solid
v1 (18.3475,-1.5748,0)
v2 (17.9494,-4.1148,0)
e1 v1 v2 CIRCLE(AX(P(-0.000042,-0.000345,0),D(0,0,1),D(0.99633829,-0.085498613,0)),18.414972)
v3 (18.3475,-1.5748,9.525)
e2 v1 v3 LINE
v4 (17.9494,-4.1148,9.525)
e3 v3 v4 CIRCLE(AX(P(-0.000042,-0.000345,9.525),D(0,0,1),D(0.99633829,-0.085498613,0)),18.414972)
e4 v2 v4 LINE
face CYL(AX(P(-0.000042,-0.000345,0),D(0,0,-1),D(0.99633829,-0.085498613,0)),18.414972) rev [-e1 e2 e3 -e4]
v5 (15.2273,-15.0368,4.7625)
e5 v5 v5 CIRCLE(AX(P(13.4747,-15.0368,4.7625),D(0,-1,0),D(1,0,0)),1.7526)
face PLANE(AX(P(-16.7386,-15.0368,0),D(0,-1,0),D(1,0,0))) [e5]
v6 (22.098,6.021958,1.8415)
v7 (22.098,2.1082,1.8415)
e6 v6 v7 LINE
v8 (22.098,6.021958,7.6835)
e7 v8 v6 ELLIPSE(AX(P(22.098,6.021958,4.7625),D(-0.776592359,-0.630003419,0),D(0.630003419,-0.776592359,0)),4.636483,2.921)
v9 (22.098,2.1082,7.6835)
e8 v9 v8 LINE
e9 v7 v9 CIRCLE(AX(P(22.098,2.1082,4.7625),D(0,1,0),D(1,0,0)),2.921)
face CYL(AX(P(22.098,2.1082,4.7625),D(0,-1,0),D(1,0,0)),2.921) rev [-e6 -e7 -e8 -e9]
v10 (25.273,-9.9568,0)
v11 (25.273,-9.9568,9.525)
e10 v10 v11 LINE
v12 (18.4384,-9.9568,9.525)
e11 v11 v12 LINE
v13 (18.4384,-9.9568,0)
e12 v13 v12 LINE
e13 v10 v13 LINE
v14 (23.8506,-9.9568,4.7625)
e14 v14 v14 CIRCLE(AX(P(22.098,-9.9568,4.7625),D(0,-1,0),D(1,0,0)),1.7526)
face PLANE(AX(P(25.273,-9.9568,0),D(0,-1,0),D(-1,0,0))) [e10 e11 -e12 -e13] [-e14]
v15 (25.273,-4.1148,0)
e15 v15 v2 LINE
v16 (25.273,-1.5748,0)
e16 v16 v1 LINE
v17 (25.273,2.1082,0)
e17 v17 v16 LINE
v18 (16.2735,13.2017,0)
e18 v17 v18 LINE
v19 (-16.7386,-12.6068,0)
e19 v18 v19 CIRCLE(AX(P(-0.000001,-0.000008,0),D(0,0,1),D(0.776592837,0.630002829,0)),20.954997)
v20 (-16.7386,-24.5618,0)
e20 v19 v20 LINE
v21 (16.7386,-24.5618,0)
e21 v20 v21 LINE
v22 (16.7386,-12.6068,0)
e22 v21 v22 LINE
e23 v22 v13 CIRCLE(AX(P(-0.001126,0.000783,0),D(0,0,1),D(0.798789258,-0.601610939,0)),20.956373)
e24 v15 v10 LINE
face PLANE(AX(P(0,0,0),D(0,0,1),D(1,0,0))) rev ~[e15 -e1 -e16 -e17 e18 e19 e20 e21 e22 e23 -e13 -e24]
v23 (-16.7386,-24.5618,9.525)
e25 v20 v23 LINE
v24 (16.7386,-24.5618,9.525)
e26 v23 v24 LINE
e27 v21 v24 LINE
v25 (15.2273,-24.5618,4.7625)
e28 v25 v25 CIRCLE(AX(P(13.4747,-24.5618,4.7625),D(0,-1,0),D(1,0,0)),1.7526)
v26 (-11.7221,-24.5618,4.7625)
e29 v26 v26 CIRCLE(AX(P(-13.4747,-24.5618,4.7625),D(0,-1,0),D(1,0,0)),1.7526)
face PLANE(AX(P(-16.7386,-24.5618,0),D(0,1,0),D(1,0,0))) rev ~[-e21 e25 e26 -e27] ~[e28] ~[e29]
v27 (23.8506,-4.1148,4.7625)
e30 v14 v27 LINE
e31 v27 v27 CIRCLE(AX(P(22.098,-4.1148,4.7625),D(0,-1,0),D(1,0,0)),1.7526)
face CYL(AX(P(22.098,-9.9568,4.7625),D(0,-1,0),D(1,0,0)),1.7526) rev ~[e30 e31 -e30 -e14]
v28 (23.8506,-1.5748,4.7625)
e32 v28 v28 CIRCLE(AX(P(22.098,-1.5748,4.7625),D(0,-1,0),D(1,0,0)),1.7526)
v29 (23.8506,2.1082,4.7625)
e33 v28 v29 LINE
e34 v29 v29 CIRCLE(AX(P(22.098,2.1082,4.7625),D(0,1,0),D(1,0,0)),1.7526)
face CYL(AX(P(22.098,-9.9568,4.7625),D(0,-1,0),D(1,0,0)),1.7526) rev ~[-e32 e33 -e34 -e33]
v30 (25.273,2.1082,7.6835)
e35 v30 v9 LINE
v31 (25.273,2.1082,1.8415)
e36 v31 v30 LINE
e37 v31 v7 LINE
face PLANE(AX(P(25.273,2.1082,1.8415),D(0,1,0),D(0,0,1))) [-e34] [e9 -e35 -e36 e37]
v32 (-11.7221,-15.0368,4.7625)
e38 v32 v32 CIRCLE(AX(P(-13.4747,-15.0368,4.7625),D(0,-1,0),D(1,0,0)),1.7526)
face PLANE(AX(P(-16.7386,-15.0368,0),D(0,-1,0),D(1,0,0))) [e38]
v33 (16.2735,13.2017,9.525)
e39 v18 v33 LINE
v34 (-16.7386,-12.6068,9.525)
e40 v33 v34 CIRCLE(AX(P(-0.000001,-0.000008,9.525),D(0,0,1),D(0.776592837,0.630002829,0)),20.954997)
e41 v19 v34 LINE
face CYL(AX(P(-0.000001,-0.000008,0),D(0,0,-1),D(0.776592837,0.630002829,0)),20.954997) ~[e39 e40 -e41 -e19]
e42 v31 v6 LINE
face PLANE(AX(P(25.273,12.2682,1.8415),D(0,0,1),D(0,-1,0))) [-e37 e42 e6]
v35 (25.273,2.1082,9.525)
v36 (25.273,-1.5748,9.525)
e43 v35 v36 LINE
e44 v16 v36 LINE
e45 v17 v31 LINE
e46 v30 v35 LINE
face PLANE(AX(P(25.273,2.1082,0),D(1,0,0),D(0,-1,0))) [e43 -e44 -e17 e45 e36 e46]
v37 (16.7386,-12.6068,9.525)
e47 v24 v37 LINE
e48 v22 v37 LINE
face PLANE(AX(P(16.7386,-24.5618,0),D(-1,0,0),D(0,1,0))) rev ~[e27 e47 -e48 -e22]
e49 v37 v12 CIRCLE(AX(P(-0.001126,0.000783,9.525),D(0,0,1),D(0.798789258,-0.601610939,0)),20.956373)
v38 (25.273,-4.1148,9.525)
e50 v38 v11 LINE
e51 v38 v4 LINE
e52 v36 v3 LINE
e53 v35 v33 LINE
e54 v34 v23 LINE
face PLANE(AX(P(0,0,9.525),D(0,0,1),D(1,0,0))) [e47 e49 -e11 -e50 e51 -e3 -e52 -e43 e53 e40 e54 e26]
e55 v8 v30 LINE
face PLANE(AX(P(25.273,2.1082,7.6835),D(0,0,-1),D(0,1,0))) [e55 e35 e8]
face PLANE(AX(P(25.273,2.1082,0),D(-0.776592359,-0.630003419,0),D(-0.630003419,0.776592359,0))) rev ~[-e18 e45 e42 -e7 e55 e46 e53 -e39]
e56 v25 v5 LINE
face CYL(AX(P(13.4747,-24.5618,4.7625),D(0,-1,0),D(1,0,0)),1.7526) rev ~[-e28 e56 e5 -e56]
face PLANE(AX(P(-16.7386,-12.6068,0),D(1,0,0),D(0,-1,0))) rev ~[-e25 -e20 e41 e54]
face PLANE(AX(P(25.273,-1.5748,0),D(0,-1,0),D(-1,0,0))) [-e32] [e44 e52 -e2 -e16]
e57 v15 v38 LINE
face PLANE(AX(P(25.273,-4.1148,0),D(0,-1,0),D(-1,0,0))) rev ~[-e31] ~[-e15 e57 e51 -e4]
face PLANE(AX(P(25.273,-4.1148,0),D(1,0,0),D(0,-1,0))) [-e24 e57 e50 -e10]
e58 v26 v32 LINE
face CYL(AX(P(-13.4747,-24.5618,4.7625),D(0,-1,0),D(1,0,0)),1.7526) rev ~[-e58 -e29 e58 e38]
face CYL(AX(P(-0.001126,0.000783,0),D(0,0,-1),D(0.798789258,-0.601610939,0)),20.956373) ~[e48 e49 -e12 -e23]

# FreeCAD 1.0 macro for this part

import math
import FreeCAD as App
import Part
import Sketcher
Q = App.Units.Quantity


def add_polygon(sketch, points):
    """Adds a closed chain of lines whose ends are joined by coincident constraints."""
    first, n = sketch.GeometryCount, len(points)
    for a, b in zip(points, points[1:] + points[:1]):
        sketch.addGeometry(Part.LineSegment(App.Vector(*a, 0), App.Vector(*b, 0)), False)
    for i in range(n):
        sketch.addConstraint(Sketcher.Constraint("Coincident", first + i, 2, first + (i + 1) % n, 1))

doc = App.newDocument("Part")
params = doc.addObject("Spreadsheet::Sheet", "Params")
for row, (alias, value) in enumerate([
    ("sketch1_radius", "0.725 in"),
    ("sketch1_radius2", "0.825 in"),
    ("sketch1_height", "0.23 in"),
    ("sketch1_width", "1.318 in"),
    ("sketch1_height2", "0.145 in"),
    ("pad1_length", "0.375 in"),
    ("sketch2_diameter", "0.138 in"),
    ("pocket1_length", "0.375 in"),
    ("sketch3_diameter", "0.138 in"),
    ("pocket2_length", "1 in"),
    ("sketch4_width", "0.4 in"),
    ("sketch4_height", "0.23 in"),
    ("pocket3_length", "0.125 in"),
    ("sketch5_diameter", "0.23 in"),
    ("pocket4_length", "0.375 in"),
], start=1):
    params.set(f"A{row}", alias)
    params.set(f"B{row}", "=" + value)
    params.setAlias(f"B{row}", alias)

body = doc.addObject("PartDesign::Body", "Body")

sketch1 = doc.addObject("Sketcher::SketchObject", "Sketch")
body.addObject(sketch1)
sketch1.AttachmentSupport = (doc.XY_Plane, [""])
sketch1.MapMode = "FlatFace"
sketch1.addGeometry([
    Part.ArcOfCircle(Part.Circle(App.Vector(0, 0, 0), App.Vector(0, 0, 1), 18.41496), math.radians(-4.90578), math.radians(347.088358)),
    Part.LineSegment(App.Vector(18.3475, -1.5748, 0), App.Vector(25.273, -1.5748, 0)),
    Part.LineSegment(App.Vector(25.273, -1.5748, 0), App.Vector(25.273, 2.1082, 0)),
    Part.LineSegment(App.Vector(25.273, 2.1082, 0), App.Vector(16.2735, 13.2017, 0)),
    Part.ArcOfCircle(Part.Circle(App.Vector(0, 0, 0), App.Vector(0, 0, 1), 20.955003), math.radians(39.050317), math.radians(216.985501)),
    Part.LineSegment(App.Vector(-16.7386, -12.6068, 0), App.Vector(-16.7386, -24.5618, 0)),
    Part.LineSegment(App.Vector(-16.7386, -24.5618, 0), App.Vector(16.7386, -24.5618, 0)),
    Part.LineSegment(App.Vector(16.7386, -24.5618, 0), App.Vector(16.7386, -12.6068, 0)),
    Part.ArcOfCircle(Part.Circle(App.Vector(-0.001126, 0.000783, 0), App.Vector(0, 0, 1), 20.956373), math.radians(-36.98536), math.radians(-28.369622)),
    Part.LineSegment(App.Vector(18.4384, -9.9568, 0), App.Vector(25.273, -9.9568, 0)),
    Part.LineSegment(App.Vector(25.273, -9.9568, 0), App.Vector(25.273, -4.1148, 0)),
    Part.LineSegment(App.Vector(25.273, -4.1148, 0), App.Vector(17.9494, -4.1148, 0)),
], False)
sketch1.addConstraint([
    Sketcher.Constraint("Coincident", 0, 1, 1, 1),
    Sketcher.Constraint("Coincident", 1, 2, 2, 1),
    Sketcher.Constraint("Coincident", 2, 2, 3, 1),
    Sketcher.Constraint("Tangent", 3, 2, 4, 1),
    Sketcher.Constraint("Coincident", 4, 2, 5, 1),
    Sketcher.Constraint("Coincident", 5, 2, 6, 1),
    Sketcher.Constraint("Coincident", 6, 2, 7, 1),
    Sketcher.Constraint("Coincident", 7, 2, 8, 1),
    Sketcher.Constraint("Coincident", 8, 2, 9, 1),
    Sketcher.Constraint("Coincident", 9, 2, 10, 1),
    Sketcher.Constraint("Coincident", 10, 2, 11, 1),
    Sketcher.Constraint("Coincident", 11, 2, 0, 2),
    Sketcher.Constraint("Horizontal", 1),
    Sketcher.Constraint("Vertical", 2),
    Sketcher.Constraint("Vertical", 5),
    Sketcher.Constraint("Horizontal", 6),
    Sketcher.Constraint("Vertical", 7),
    Sketcher.Constraint("Horizontal", 9),
    Sketcher.Constraint("Vertical", 10),
    Sketcher.Constraint("Horizontal", 11),
    Sketcher.Constraint("Coincident", 0, 3, -1, 1),
    Sketcher.Constraint("Coincident", 4, 3, -1, 1),
    Sketcher.Constraint("Symmetric", 4, 2, 7, 2, -2),
    Sketcher.Constraint("Vertical", 2, 2, 9, 2),
    Sketcher.Constraint("Radius", 0, Q("0.725 in")),
    Sketcher.Constraint("Radius", 4, Q("0.825 in")),
    Sketcher.Constraint("DistanceY", 10, 1, 10, 2, Q("0.23 in")),
    Sketcher.Constraint("DistanceY", 10, 2, 1, 2, Q("0.1 in")),
    Sketcher.Constraint("DistanceX", 6, 1, 6, 2, Q("1.318 in")),
    Sketcher.Constraint("DistanceY", 2, 1, 2, 2, Q("0.145 in")),
    Sketcher.Constraint("Angle", 3, Q("129.0504 deg")),
    Sketcher.Constraint("Radius", 8, Q("20.9564 mm")),
    Sketcher.Constraint("DistanceY", 6, 2, 2, 2, Q("1.05 in")),
    Sketcher.Constraint("DistanceY", 0, 1, -1, 1, Q("0.062 in")),
    Sketcher.Constraint("DistanceX", 9, 1, 9, 2, Q("6.8346 mm")),
])
sketch1.setExpression("Constraints[24]", "Params.sketch1_radius")
sketch1.setExpression("Constraints[25]", "Params.sketch1_radius2")
sketch1.setExpression("Constraints[26]", "Params.sketch1_height")
sketch1.setExpression("Constraints[28]", "Params.sketch1_width")
sketch1.setExpression("Constraints[29]", "Params.sketch1_height2")
pad1 = doc.addObject("PartDesign::Pad", "Pad")
body.addObject(pad1)
pad1.Profile = sketch1
pad1.setExpression("Length", "Params.pad1_length")

sketch2 = doc.addObject("Sketcher::SketchObject", "Sketch001")
body.addObject(sketch2)
sketch2.AttachmentSupport = (doc.XZ_Plane, [""])
sketch2.MapMode = "FlatFace"
sketch2.AttachmentOffset = App.Placement(App.Vector(0, 0, 0.967 * 25.4), App.Rotation())
sketch2.addGeometry([
    Part.Circle(App.Vector(-13.4747, 4.7625, 0), App.Vector(0, 0, 1), 1.7526),
    Part.Circle(App.Vector(13.4747, 4.7625, 0), App.Vector(0, 0, 1), 1.7526),
], False)
sketch2.addConstraint([
    Sketcher.Constraint("Equal", 0, 1),
    Sketcher.Constraint("Symmetric", 0, 3, 1, 3, -2),
    Sketcher.Constraint("Diameter", 0, Q("0.138 in")),
    Sketcher.Constraint("DistanceX", 0, 3, 1, 3, Q("1.061 in")),
    Sketcher.Constraint("DistanceY", -1, 1, 0, 3, Q("0.1875 in")),
])
sketch2.setExpression("Constraints[2]", "Params.sketch2_diameter")
pocket1 = doc.addObject("PartDesign::Pocket", "Pocket")
body.addObject(pocket1)
pocket1.Profile = sketch2
pocket1.setExpression("Length", "Params.pocket1_length")

sketch3 = doc.addObject("Sketcher::SketchObject", "Sketch002")
body.addObject(sketch3)
sketch3.AttachmentSupport = (doc.XZ_Plane, [""])
sketch3.MapMode = "FlatFace"
sketch3.AttachmentOffset = App.Placement(App.Vector(0, 0, 0.392 * 25.4), App.Rotation())
sketch3.addGeometry(Part.Circle(App.Vector(22.098, 4.7625, 0), App.Vector(0, 0, 1), 1.7526), False)
sketch3.addConstraint([
    Sketcher.Constraint("Diameter", 0, Q("0.138 in")),
    Sketcher.Constraint("DistanceX", -1, 1, 0, 3, Q("0.87 in")),
    Sketcher.Constraint("DistanceY", -1, 1, 0, 3, Q("0.1875 in")),
])
sketch3.setExpression("Constraints[0]", "Params.sketch3_diameter")
pocket2 = doc.addObject("PartDesign::Pocket", "Pocket001")
body.addObject(pocket2)
pocket2.Profile = sketch3
pocket2.setExpression("Length", "Params.pocket2_length")

sketch4 = doc.addObject("Sketcher::SketchObject", "Sketch003")
body.addObject(sketch4)
sketch4.AttachmentSupport = (doc.YZ_Plane, [""])
sketch4.MapMode = "FlatFace"
sketch4.AttachmentOffset = App.Placement(App.Vector(0, 0, 0.995 * 25.4), App.Rotation())
add_polygon(sketch4, [(2.1082, 7.6835), (2.1082, 1.8415), (12.2682, 1.8415), (12.2682, 7.6835)])
sketch4.addConstraint([
    Sketcher.Constraint("Vertical", 0),
    Sketcher.Constraint("Horizontal", 1),
    Sketcher.Constraint("Vertical", 2),
    Sketcher.Constraint("Horizontal", 3),
    Sketcher.Constraint("DistanceX", 1, 1, 1, 2, Q("0.4 in")),
    Sketcher.Constraint("DistanceY", 0, 2, 0, 1, Q("0.23 in")),
    Sketcher.Constraint("DistanceX", -1, 1, 0, 2, Q("0.083 in")),
    Sketcher.Constraint("DistanceY", -1, 1, 0, 2, Q("0.0725 in")),
])
sketch4.setExpression("Constraints[8]", "Params.sketch4_width")
sketch4.setExpression("Constraints[9]", "Params.sketch4_height")
pocket3 = doc.addObject("PartDesign::Pocket", "Pocket002")
body.addObject(pocket3)
pocket3.Profile = sketch4
pocket3.setExpression("Length", "Params.pocket3_length")

sketch5 = doc.addObject("Sketcher::SketchObject", "Sketch004")
body.addObject(sketch5)
sketch5.AttachmentSupport = (doc.XZ_Plane, [""])
sketch5.MapMode = "FlatFace"
sketch5.AttachmentOffset = App.Placement(App.Vector(0, 0, -0.083 * 25.4), App.Rotation())
sketch5.addGeometry(Part.Circle(App.Vector(22.098, 4.7625, 0), App.Vector(0, 0, 1), 2.921), False)
sketch5.addConstraint([
    Sketcher.Constraint("Diameter", 0, Q("0.23 in")),
    Sketcher.Constraint("DistanceX", -1, 1, 0, 3, Q("0.87 in")),
    Sketcher.Constraint("DistanceY", -1, 1, 0, 3, Q("0.1875 in")),
])
sketch5.setExpression("Constraints[0]", "Params.sketch5_diameter")
pocket4 = doc.addObject("PartDesign::Pocket", "Pocket003")
body.addObject(pocket4)
pocket4.Profile = sketch5
pocket4.setExpression("Length", "Params.pocket4_length")

doc.recompute()
